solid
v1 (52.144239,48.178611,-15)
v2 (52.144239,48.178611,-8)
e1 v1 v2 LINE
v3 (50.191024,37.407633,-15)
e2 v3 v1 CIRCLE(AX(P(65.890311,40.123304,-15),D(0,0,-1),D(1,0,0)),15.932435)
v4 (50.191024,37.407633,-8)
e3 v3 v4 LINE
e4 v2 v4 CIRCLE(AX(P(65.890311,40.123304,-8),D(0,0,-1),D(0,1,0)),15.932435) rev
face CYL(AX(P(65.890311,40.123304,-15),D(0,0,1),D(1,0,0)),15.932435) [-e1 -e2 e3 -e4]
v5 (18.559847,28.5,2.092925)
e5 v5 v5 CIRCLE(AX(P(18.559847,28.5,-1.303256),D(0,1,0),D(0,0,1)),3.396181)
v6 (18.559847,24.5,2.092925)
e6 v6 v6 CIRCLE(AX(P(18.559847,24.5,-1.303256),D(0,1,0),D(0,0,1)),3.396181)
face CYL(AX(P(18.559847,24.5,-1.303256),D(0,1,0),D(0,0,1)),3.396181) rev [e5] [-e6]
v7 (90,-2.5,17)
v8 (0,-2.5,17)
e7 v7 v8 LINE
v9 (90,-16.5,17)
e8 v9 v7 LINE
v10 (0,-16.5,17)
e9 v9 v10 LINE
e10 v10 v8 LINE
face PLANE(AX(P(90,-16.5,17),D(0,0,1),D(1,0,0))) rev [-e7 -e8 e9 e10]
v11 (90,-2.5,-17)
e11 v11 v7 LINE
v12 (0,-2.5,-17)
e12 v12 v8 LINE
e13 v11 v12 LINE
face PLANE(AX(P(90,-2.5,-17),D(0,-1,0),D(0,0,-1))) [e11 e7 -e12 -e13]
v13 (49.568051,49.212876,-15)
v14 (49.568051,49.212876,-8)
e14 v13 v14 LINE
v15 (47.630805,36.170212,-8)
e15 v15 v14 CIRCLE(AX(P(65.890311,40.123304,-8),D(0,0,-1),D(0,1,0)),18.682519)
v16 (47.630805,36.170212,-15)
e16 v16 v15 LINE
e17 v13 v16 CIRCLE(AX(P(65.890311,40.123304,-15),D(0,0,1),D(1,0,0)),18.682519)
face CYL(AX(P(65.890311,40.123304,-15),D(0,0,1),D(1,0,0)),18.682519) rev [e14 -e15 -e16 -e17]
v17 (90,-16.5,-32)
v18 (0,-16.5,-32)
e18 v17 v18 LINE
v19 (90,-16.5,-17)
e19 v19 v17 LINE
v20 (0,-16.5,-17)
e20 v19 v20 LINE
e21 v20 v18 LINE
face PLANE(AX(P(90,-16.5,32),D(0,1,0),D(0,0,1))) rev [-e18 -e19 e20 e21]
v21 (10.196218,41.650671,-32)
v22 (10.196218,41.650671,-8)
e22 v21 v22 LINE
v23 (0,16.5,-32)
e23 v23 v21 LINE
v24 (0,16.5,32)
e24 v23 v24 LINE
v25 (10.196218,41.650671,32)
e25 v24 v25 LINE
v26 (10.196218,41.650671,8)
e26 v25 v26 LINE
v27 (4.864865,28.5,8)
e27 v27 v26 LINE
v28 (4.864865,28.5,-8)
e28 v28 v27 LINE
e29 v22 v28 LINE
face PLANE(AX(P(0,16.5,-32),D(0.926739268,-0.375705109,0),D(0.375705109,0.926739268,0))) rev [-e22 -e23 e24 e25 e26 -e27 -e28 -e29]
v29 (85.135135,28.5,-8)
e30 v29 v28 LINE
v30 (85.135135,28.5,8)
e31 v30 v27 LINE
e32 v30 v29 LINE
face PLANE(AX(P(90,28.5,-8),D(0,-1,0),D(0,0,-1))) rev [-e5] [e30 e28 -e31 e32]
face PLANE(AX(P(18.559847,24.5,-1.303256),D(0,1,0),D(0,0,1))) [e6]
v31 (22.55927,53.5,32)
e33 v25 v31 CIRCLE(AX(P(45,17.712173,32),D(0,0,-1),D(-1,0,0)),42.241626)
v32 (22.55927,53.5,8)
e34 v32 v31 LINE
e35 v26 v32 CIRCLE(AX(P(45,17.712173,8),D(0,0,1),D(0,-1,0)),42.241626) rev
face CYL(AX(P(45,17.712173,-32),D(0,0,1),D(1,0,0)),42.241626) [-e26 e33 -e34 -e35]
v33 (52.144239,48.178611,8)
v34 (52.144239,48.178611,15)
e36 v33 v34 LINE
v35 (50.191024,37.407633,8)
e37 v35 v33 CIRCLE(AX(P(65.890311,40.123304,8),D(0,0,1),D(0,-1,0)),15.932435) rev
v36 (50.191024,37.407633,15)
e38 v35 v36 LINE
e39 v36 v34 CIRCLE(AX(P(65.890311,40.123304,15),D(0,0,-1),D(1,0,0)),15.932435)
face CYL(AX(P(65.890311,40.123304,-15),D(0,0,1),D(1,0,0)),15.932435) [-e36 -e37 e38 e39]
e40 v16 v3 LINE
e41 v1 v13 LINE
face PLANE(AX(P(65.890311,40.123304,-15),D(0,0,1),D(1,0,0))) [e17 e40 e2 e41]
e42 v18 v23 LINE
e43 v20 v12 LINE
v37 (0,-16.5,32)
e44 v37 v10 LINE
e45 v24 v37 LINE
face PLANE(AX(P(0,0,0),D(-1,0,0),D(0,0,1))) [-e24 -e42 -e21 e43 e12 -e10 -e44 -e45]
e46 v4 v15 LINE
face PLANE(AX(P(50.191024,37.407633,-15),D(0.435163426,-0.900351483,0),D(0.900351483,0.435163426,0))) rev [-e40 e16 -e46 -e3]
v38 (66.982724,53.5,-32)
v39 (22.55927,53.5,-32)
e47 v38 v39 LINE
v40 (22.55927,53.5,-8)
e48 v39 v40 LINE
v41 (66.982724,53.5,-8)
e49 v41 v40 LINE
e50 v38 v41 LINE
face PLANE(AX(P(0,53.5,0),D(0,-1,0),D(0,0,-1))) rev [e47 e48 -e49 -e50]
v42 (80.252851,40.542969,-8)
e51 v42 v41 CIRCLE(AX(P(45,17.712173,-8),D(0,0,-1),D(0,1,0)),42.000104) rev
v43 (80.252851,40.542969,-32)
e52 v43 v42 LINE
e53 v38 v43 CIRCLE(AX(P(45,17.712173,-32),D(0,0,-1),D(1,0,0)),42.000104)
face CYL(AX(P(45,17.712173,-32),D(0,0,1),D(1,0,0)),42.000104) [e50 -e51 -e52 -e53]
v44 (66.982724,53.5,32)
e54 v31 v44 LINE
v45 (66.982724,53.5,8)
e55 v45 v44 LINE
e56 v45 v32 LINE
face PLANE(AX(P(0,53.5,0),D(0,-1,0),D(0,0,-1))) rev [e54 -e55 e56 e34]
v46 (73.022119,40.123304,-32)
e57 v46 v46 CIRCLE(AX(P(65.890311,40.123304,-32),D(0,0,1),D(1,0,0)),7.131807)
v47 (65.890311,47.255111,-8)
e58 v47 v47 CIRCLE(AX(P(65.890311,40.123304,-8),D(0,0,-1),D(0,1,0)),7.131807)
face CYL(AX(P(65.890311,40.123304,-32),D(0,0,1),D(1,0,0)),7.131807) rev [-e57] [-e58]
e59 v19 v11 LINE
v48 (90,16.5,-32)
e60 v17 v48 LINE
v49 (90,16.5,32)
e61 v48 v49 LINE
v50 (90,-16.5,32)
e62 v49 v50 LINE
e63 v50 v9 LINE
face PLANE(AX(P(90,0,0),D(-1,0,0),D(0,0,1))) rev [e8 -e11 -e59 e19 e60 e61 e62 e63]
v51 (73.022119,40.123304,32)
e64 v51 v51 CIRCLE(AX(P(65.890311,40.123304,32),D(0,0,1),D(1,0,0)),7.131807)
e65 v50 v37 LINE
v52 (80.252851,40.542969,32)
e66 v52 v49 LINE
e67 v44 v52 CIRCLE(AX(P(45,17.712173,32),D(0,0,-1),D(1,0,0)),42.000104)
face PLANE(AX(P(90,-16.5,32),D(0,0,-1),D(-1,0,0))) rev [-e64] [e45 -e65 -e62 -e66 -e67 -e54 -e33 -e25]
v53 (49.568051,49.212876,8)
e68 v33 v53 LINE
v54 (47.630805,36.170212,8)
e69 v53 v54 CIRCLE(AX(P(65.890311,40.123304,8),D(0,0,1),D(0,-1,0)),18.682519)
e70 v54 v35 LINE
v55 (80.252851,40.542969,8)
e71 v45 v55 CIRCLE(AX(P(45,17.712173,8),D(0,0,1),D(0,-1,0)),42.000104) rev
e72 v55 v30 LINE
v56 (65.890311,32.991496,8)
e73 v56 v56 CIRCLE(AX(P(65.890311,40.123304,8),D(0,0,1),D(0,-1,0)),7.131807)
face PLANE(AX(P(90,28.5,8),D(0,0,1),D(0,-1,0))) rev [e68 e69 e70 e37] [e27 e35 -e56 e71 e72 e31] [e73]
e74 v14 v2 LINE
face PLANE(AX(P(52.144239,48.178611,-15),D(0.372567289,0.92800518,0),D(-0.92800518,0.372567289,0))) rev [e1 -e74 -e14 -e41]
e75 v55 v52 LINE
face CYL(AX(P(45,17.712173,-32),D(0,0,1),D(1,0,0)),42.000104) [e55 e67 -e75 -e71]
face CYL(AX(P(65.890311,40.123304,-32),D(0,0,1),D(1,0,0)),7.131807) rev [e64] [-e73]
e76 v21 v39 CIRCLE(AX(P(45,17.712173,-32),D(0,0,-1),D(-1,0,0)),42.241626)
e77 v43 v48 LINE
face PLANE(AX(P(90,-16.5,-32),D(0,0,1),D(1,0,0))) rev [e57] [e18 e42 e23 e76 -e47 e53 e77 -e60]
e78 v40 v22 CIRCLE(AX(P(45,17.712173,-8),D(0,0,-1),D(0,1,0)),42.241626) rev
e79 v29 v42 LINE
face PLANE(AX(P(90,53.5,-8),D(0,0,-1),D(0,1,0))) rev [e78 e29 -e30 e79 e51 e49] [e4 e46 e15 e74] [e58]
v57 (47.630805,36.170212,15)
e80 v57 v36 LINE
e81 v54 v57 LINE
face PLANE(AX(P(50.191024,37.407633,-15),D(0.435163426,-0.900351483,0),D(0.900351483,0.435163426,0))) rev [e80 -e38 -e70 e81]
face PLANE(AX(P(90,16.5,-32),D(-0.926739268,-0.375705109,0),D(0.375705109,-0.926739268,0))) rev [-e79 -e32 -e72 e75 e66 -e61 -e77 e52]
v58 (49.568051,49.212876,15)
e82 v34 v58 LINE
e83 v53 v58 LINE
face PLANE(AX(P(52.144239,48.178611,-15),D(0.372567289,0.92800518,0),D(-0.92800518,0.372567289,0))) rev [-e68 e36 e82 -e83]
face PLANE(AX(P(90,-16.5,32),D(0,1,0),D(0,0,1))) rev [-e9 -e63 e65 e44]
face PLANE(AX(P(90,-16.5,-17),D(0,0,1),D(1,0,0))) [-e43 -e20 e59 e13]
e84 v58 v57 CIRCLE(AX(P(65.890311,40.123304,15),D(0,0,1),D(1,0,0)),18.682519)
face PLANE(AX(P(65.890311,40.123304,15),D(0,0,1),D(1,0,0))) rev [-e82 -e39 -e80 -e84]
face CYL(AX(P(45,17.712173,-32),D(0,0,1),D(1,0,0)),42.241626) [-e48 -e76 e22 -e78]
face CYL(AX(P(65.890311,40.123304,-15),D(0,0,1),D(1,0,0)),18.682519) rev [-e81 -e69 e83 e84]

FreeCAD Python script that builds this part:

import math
import FreeCAD as App
import Part
import Sketcher
from FreeCAD import Vector

doc = App.newDocument("Part")
body = doc.addObject("PartDesign::Body", "Body")

# Sketch on YZ plane
sketch1 = body.newObject("Sketcher::SketchObject", "Sketch")
sketch1.AttachmentSupport = (doc.getObject("YZ_Plane"), [""])
sketch1.MapMode = "FlatFace"
sketch1.addGeometry(Part.LineSegment(Vector(16.5, 32, 0), Vector(-16.5, 32, 0)), False)
sketch1.addGeometry(Part.LineSegment(Vector(-16.5, 32, 0), Vector(-16.5, -32, 0)), False)
sketch1.addGeometry(Part.LineSegment(Vector(-16.5, -32, 0), Vector(16.5, -32, 0)), False)
sketch1.addGeometry(Part.LineSegment(Vector(16.5, -32, 0), Vector(16.5, 32, 0)), False)
sketch1.addConstraint(Sketcher.Constraint("Coincident", 0, 2, 1, 1))
sketch1.addConstraint(Sketcher.Constraint("Coincident", 1, 2, 2, 1))
sketch1.addConstraint(Sketcher.Constraint("Coincident", 2, 2, 3, 1))
sketch1.addConstraint(Sketcher.Constraint("Coincident", 3, 2, 0, 1))
sketch1.addConstraint(Sketcher.Constraint("Horizontal", 0))
sketch1.addConstraint(Sketcher.Constraint("Vertical", 1))
sketch1.addConstraint(Sketcher.Constraint("Horizontal", 2))
sketch1.addConstraint(Sketcher.Constraint("Vertical", 3))
sketch1.addConstraint(Sketcher.Constraint("Symmetric", 0, 2, 2, 2, -1, 1))
sketch1.addConstraint(Sketcher.Constraint("DistanceX", 0, 2, 0, 1, 33.0))
sketch1.addConstraint(Sketcher.Constraint("DistanceY", 1, 2, 1, 1, 64.0))
pad1 = body.newObject("PartDesign::Pad", "Pad")
pad1.Profile = sketch1
pad1.Length = 90

# Sketch on YZ plane
sketch2 = body.newObject("Sketcher::SketchObject", "Sketch001")
sketch2.AttachmentSupport = (doc.getObject("YZ_Plane"), [""])
sketch2.MapMode = "FlatFace"
sketch2.addGeometry(Part.LineSegment(Vector(-2.5, -17, 0), Vector(-16.5, -17, 0)), False)
sketch2.addGeometry(Part.LineSegment(Vector(-16.5, -17, 0), Vector(-16.5, 17, 0)), False)
sketch2.addGeometry(Part.LineSegment(Vector(-16.5, 17, 0), Vector(-2.5, 17, 0)), False)
sketch2.addGeometry(Part.LineSegment(Vector(-2.5, 17, 0), Vector(-2.5, -17, 0)), False)
sketch2.addConstraint(Sketcher.Constraint("Coincident", 0, 2, 1, 1))
sketch2.addConstraint(Sketcher.Constraint("Coincident", 1, 2, 2, 1))
sketch2.addConstraint(Sketcher.Constraint("Coincident", 2, 2, 3, 1))
sketch2.addConstraint(Sketcher.Constraint("Coincident", 3, 2, 0, 1))
sketch2.addConstraint(Sketcher.Constraint("Horizontal", 0))
sketch2.addConstraint(Sketcher.Constraint("Vertical", 1))
sketch2.addConstraint(Sketcher.Constraint("Horizontal", 2))
sketch2.addConstraint(Sketcher.Constraint("Vertical", 3))
sketch2.addConstraint(Sketcher.Constraint("DistanceX", 0, 2, 0, 1, 14.0))
sketch2.addConstraint(Sketcher.Constraint("DistanceY", 1, 1, 1, 2, 34.0))
sketch2.addConstraint(Sketcher.Constraint("DistanceY", 0, 2, -1, 1, 17.0))
sketch2.addConstraint(Sketcher.Constraint("DistanceX", 0, 2, -1, 1, 16.5))
pocket1 = body.newObject("PartDesign::Pocket", "Pocket")
pocket1.Profile = sketch2
pocket1.Type = "ThroughAll"
pocket1.Reversed = True

# Sketch on XZ plane
sketch3 = body.newObject("Sketcher::SketchObject", "Sketch002")
sketch3.AttachmentSupport = (doc.getObject("XZ_Plane"), [""])
sketch3.MapMode = "FlatFace"
sketch3.AttachmentOffset = App.Placement(Vector(0, 0, -16.5), App.Rotation())
sketch3.addGeometry(Part.LineSegment(Vector(0, -32, 0), Vector(0, 32, 0)), False)
sketch3.addGeometry(Part.LineSegment(Vector(0, 32, 0), Vector(90, 32, 0)), False)
sketch3.addGeometry(Part.LineSegment(Vector(90, 32, 0), Vector(90, -32, 0)), False)
sketch3.addGeometry(Part.LineSegment(Vector(90, -32, 0), Vector(0, -32, 0)), False)
sketch3.addConstraint(Sketcher.Constraint("Coincident", 0, 2, 1, 1))
sketch3.addConstraint(Sketcher.Constraint("Coincident", 1, 2, 2, 1))
sketch3.addConstraint(Sketcher.Constraint("Coincident", 2, 2, 3, 1))
sketch3.addConstraint(Sketcher.Constraint("Coincident", 3, 2, 0, 1))
sketch3.addConstraint(Sketcher.Constraint("Vertical", 0))
sketch3.addConstraint(Sketcher.Constraint("Horizontal", 1))
sketch3.addConstraint(Sketcher.Constraint("Vertical", 2))
sketch3.addConstraint(Sketcher.Constraint("Horizontal", 3))
sketch3.addConstraint(Sketcher.Constraint("Symmetric", 0, 2, 3, 2, -1, 1))
sketch3.addConstraint(Sketcher.Constraint("DistanceX", 1, 1, 1, 2, 90.0))
sketch3.addConstraint(Sketcher.Constraint("DistanceY", 0, 1, 0, 2, 64.0))
pad2 = body.newObject("PartDesign::Pad", "Pad001")
pad2.Profile = sketch3
pad2.Length = 37
pad2.Reversed = True

# Sketch on YZ plane
sketch4 = body.newObject("Sketcher::SketchObject", "Sketch003")
sketch4.AttachmentSupport = (doc.getObject("YZ_Plane"), [""])
sketch4.MapMode = "FlatFace"
sketch4.addGeometry(Part.LineSegment(Vector(53.5, -8, 0), Vector(28.5, -8, 0)), False)
sketch4.addGeometry(Part.LineSegment(Vector(28.5, -8, 0), Vector(28.5, 8, 0)), False)
sketch4.addGeometry(Part.LineSegment(Vector(28.5, 8, 0), Vector(53.5, 8, 0)), False)
sketch4.addGeometry(Part.LineSegment(Vector(53.5, 8, 0), Vector(53.5, -8, 0)), False)
sketch4.addConstraint(Sketcher.Constraint("Coincident", 0, 2, 1, 1))
sketch4.addConstraint(Sketcher.Constraint("Coincident", 1, 2, 2, 1))
sketch4.addConstraint(Sketcher.Constraint("Coincident", 2, 2, 3, 1))
sketch4.addConstraint(Sketcher.Constraint("Coincident", 3, 2, 0, 1))
sketch4.addConstraint(Sketcher.Constraint("Horizontal", 0))
sketch4.addConstraint(Sketcher.Constraint("Vertical", 1))
sketch4.addConstraint(Sketcher.Constraint("Horizontal", 2))
sketch4.addConstraint(Sketcher.Constraint("Vertical", 3))
sketch4.addConstraint(Sketcher.Constraint("DistanceX", 0, 2, 0, 1, 25.0))
sketch4.addConstraint(Sketcher.Constraint("DistanceY", 1, 1, 1, 2, 16.0))
sketch4.addConstraint(Sketcher.Constraint("DistanceY", 0, 2, -1, 1, 8.0))
sketch4.addConstraint(Sketcher.Constraint("DistanceX", -1, 1, 0, 2, 28.5))
pocket2 = body.newObject("PartDesign::Pocket", "Pocket001")
pocket2.Profile = sketch4
pocket2.Type = "ThroughAll"
pocket2.Reversed = True

# Sketch on XY plane
sketch5 = body.newObject("Sketcher::SketchObject", "Sketch004")
sketch5.AttachmentSupport = (doc.getObject("XY_Plane"), [""])
sketch5.MapMode = "FlatFace"
sketch5.AttachmentOffset = App.Placement(Vector(0, 0, 32), App.Rotation())
sketch5.addGeometry(Part.LineSegment(Vector(0, 16.5, 0), Vector(15, 53.5, 0)), False)
sketch5.addGeometry(Part.LineSegment(Vector(15, 53.5, 0), Vector(0, 53.5, 0)), False)
sketch5.addGeometry(Part.LineSegment(Vector(0, 53.5, 0), Vector(0, 16.5, 0)), False)
sketch5.addGeometry(Part.LineSegment(Vector(90, 16.5, 0), Vector(90, 53.5, 0)), False)
sketch5.addGeometry(Part.LineSegment(Vector(90, 53.5, 0), Vector(75, 53.5, 0)), False)
sketch5.addGeometry(Part.LineSegment(Vector(75, 53.5, 0), Vector(90, 16.5, 0)), False)
sketch5.addConstraint(Sketcher.Constraint("Coincident", 0, 2, 1, 1))
sketch5.addConstraint(Sketcher.Constraint("Coincident", 1, 2, 2, 1))
sketch5.addConstraint(Sketcher.Constraint("Coincident", 2, 2, 0, 1))
sketch5.addConstraint(Sketcher.Constraint("Coincident", 3, 2, 4, 1))
sketch5.addConstraint(Sketcher.Constraint("Coincident", 4, 2, 5, 1))
sketch5.addConstraint(Sketcher.Constraint("Coincident", 5, 2, 3, 1))
sketch5.addConstraint(Sketcher.Constraint("Horizontal", 1))
sketch5.addConstraint(Sketcher.Constraint("Vertical", 2))
sketch5.addConstraint(Sketcher.Constraint("Vertical", 3))
sketch5.addConstraint(Sketcher.Constraint("Horizontal", 4))
sketch5.addConstraint(Sketcher.Constraint("PointOnObject", 1, 2, -2))
sketch5.addConstraint(Sketcher.Constraint("Horizontal", 1, 2, 3, 2))
sketch5.addConstraint(Sketcher.Constraint("Horizontal", 2, 2, 5, 2))
sketch5.addConstraint(Sketcher.Constraint("Equal", 1, 4))
sketch5.addConstraint(Sketcher.Constraint("DistanceX", 1, 2, 1, 1, 15.0))
sketch5.addConstraint(Sketcher.Constraint("DistanceY", 2, 2, 2, 1, 37.0))
sketch5.addConstraint(Sketcher.Constraint("DistanceX", -1, 1, 3, 2, 90.0))
sketch5.addConstraint(Sketcher.Constraint("DistanceY", -1, 1, 0, 2, 53.5))
pocket3 = body.newObject("PartDesign::Pocket", "Pocket002")
pocket3.Profile = sketch5
pocket3.Type = "ThroughAll"

# Sketch on XY plane
sketch6 = body.newObject("Sketcher::SketchObject", "Sketch005")
sketch6.AttachmentSupport = (doc.getObject("XY_Plane"), [""])
sketch6.MapMode = "FlatFace"
sketch6.AttachmentOffset = App.Placement(Vector(0, 0, 32), App.Rotation())
sketch6.addGeometry(Part.LineSegment(Vector(22.55927, 53.5, 0), Vector(15, 53.5, 0)), False)
sketch6.addGeometry(Part.LineSegment(Vector(15, 53.5, 0), Vector(10.196218, 41.650671, 0)), False)
sketch6.addGeometry(Part.ArcOfCircle(Part.Circle(Vector(45, 17.712173, 0), Vector(0, 0, 1), 42.241626), math.radians(122.089738), math.radians(145.479296)), False)
sketch6.addGeometry(Part.LineSegment(Vector(80.252851, 40.542969, 0), Vector(75, 53.5, 0)), False)
sketch6.addGeometry(Part.LineSegment(Vector(75, 53.5, 0), Vector(66.982724, 53.5, 0)), False)
sketch6.addGeometry(Part.ArcOfCircle(Part.Circle(Vector(45, 17.712173, 0), Vector(0, 0, 1), 42.000104), math.radians(32.928296), math.radians(58.439615)), False)
sketch6.addConstraint(Sketcher.Constraint("Coincident", 0, 2, 1, 1))
sketch6.addConstraint(Sketcher.Constraint("Coincident", 1, 2, 2, 2))
sketch6.addConstraint(Sketcher.Constraint("Coincident", 2, 1, 0, 1))
sketch6.addConstraint(Sketcher.Constraint("Coincident", 3, 2, 4, 1))
sketch6.addConstraint(Sketcher.Constraint("Coincident", 4, 2, 5, 2))
sketch6.addConstraint(Sketcher.Constraint("Coincident", 5, 1, 3, 1))
sketch6.addConstraint(Sketcher.Constraint("Horizontal", 0))
sketch6.addConstraint(Sketcher.Constraint("Horizontal", 4))
sketch6.addConstraint(Sketcher.Constraint("Coincident", 5, 3, 2, 3))
sketch6.addConstraint(Sketcher.Constraint("Horizontal", 2, 1, 3, 2))
sketch6.addConstraint(Sketcher.Constraint("DistanceX", -1, 1, 2, 3, 45.0))
sketch6.addConstraint(Sketcher.Constraint("DistanceX", -1, 1, 0, 2, 15.0))
sketch6.addConstraint(Sketcher.Constraint("DistanceX", -1, 1, 3, 2, 75.0))
sketch6.addConstraint(Sketcher.Constraint("DistanceY", -1, 1, 0, 2, 53.5))
sketch6.addConstraint(Sketcher.Constraint("Radius", 2, 42.241626))
sketch6.addConstraint(Sketcher.Constraint("Radius", 5, 42.000104))
sketch6.addConstraint(Sketcher.Constraint("DistanceX", 0, 2, 0, 1, 7.55927))
sketch6.addConstraint(Sketcher.Constraint("DistanceY", 5, 3, 1, 2, 23.938498))
sketch6.addConstraint(Sketcher.Constraint("DistanceX", -1, 1, 5, 1, 80.252851))
pocket4 = body.newObject("PartDesign::Pocket", "Pocket003")
pocket4.Profile = sketch6
pocket4.Type = "ThroughAll"

# Sketch on XY plane
sketch7 = body.newObject("Sketcher::SketchObject", "Sketch006")
sketch7.AttachmentSupport = (doc.getObject("XY_Plane"), [""])
sketch7.MapMode = "FlatFace"
sketch7.AttachmentOffset = App.Placement(Vector(0, 0, -32), App.Rotation())
sketch7.addGeometry(Part.Circle(Vector(65.890311, 40.123304, 0), Vector(0, 0, 1), 4.563259), False)
sketch7.addConstraint(Sketcher.Constraint("Diameter", 0, 9.126517))
sketch7.addConstraint(Sketcher.Constraint("DistanceX", -1, 1, 0, 3, 65.890311))
sketch7.addConstraint(Sketcher.Constraint("DistanceY", -1, 1, 0, 3, 40.123304))
pocket5 = body.newObject("PartDesign::Pocket", "Pocket004")
pocket5.Profile = sketch7
pocket5.Type = "ThroughAll"
pocket5.Reversed = True

# Sketch on XZ plane
sketch8 = body.newObject("Sketcher::SketchObject", "Sketch007")
sketch8.AttachmentSupport = (doc.getObject("XZ_Plane"), [""])
sketch8.MapMode = "FlatFace"
sketch8.AttachmentOffset = App.Placement(Vector(0, 0, -28.5), App.Rotation())
sketch8.addGeometry(Part.Circle(Vector(18.559847, -1.303256, 0), Vector(0, 0, 1), 3.396181), False)
sketch8.addConstraint(Sketcher.Constraint("Diameter", 0, 6.792362))
sketch8.addConstraint(Sketcher.Constraint("DistanceX", -1, 1, 0, 3, 18.559847))
sketch8.addConstraint(Sketcher.Constraint("DistanceY", 0, 3, -1, 1, 1.303256))
pocket6 = body.newObject("PartDesign::Pocket", "Pocket005")
pocket6.Profile = sketch8
pocket6.Length = 4
pocket6.Reversed = True

# Sketch on XY plane
sketch9 = body.newObject("Sketcher::SketchObject", "Sketch008")
sketch9.AttachmentSupport = (doc.getObject("XY_Plane"), [""])
sketch9.MapMode = "FlatFace"
sketch9.AttachmentOffset = App.Placement(Vector(0, 0, 32), App.Rotation())
sketch9.addGeometry(Part.Circle(Vector(65.890311, 40.123304, 0), Vector(0, 0, 1), 7.131807), False)
sketch9.addConstraint(Sketcher.Constraint("Diameter", 0, 14.263615))
sketch9.addConstraint(Sketcher.Constraint("DistanceX", -1, 1, 0, 3, 65.890311))
sketch9.addConstraint(Sketcher.Constraint("DistanceY", -1, 1, 0, 3, 40.123304))
pocket7 = body.newObject("PartDesign::Pocket", "Pocket006")
pocket7.Profile = sketch9
pocket7.Type = "ThroughAll"

# Sketch on XY plane
sketch10 = body.newObject("Sketcher::SketchObject", "Sketch009")
sketch10.AttachmentSupport = (doc.getObject("XY_Plane"), [""])
sketch10.MapMode = "FlatFace"
sketch10.AttachmentOffset = App.Placement(Vector(0, 0, 15), App.Rotation())
sketch10.addGeometry(Part.LineSegment(Vector(52.144239, 48.178611, 0), Vector(49.568051, 49.212876, 0)), False)
sketch10.addGeometry(Part.ArcOfCircle(Part.Circle(Vector(65.890311, 40.123304, 0), Vector(0, 0, 1), 18.682519), math.radians(150.887354), math.radians(192.215728)), False)
sketch10.addGeometry(Part.LineSegment(Vector(47.630805, 36.170212, 0), Vector(50.191024, 37.407633, 0)), False)
sketch10.addGeometry(Part.ArcOfCircle(Part.Circle(Vector(65.890311, 40.123304, 0), Vector(0, 0, 1), 15.932435), math.radians(149.629359), math.radians(189.813938)), False)
sketch10.addConstraint(Sketcher.Constraint("Coincident", 0, 2, 1, 1))
sketch10.addConstraint(Sketcher.Constraint("Coincident", 1, 2, 2, 1))
sketch10.addConstraint(Sketcher.Constraint("Coincident", 2, 2, 3, 2))
sketch10.addConstraint(Sketcher.Constraint("Coincident", 3, 1, 0, 1))
sketch10.addConstraint(Sketcher.Constraint("Coincident", 3, 3, 1, 3))
sketch10.addConstraint(Sketcher.Constraint("Radius", 1, 18.682519))
sketch10.addConstraint(Sketcher.Constraint("Radius", 3, 15.932435))
sketch10.addConstraint(Sketcher.Constraint("DistanceY", 1, 2, 3, 1, 12.008399))
sketch10.addConstraint(Sketcher.Constraint("Distance", 0, 2.776049))
sketch10.addConstraint(Sketcher.Constraint("DistanceX", -1, 1, 1, 3, 65.890311))
sketch10.addConstraint(Sketcher.Constraint("DistanceX", -1, 1, 0, 2, 49.568051))
sketch10.addConstraint(Sketcher.Constraint("DistanceY", -1, 1, 1, 2, 36.170212))
sketch10.addConstraint(Sketcher.Constraint("DistanceX", 1, 2, 2, 2, 2.56022))
pocket8 = body.newObject("PartDesign::Pocket", "Pocket007")
pocket8.Profile = sketch10
pocket8.Length = 30

doc.recompute()
